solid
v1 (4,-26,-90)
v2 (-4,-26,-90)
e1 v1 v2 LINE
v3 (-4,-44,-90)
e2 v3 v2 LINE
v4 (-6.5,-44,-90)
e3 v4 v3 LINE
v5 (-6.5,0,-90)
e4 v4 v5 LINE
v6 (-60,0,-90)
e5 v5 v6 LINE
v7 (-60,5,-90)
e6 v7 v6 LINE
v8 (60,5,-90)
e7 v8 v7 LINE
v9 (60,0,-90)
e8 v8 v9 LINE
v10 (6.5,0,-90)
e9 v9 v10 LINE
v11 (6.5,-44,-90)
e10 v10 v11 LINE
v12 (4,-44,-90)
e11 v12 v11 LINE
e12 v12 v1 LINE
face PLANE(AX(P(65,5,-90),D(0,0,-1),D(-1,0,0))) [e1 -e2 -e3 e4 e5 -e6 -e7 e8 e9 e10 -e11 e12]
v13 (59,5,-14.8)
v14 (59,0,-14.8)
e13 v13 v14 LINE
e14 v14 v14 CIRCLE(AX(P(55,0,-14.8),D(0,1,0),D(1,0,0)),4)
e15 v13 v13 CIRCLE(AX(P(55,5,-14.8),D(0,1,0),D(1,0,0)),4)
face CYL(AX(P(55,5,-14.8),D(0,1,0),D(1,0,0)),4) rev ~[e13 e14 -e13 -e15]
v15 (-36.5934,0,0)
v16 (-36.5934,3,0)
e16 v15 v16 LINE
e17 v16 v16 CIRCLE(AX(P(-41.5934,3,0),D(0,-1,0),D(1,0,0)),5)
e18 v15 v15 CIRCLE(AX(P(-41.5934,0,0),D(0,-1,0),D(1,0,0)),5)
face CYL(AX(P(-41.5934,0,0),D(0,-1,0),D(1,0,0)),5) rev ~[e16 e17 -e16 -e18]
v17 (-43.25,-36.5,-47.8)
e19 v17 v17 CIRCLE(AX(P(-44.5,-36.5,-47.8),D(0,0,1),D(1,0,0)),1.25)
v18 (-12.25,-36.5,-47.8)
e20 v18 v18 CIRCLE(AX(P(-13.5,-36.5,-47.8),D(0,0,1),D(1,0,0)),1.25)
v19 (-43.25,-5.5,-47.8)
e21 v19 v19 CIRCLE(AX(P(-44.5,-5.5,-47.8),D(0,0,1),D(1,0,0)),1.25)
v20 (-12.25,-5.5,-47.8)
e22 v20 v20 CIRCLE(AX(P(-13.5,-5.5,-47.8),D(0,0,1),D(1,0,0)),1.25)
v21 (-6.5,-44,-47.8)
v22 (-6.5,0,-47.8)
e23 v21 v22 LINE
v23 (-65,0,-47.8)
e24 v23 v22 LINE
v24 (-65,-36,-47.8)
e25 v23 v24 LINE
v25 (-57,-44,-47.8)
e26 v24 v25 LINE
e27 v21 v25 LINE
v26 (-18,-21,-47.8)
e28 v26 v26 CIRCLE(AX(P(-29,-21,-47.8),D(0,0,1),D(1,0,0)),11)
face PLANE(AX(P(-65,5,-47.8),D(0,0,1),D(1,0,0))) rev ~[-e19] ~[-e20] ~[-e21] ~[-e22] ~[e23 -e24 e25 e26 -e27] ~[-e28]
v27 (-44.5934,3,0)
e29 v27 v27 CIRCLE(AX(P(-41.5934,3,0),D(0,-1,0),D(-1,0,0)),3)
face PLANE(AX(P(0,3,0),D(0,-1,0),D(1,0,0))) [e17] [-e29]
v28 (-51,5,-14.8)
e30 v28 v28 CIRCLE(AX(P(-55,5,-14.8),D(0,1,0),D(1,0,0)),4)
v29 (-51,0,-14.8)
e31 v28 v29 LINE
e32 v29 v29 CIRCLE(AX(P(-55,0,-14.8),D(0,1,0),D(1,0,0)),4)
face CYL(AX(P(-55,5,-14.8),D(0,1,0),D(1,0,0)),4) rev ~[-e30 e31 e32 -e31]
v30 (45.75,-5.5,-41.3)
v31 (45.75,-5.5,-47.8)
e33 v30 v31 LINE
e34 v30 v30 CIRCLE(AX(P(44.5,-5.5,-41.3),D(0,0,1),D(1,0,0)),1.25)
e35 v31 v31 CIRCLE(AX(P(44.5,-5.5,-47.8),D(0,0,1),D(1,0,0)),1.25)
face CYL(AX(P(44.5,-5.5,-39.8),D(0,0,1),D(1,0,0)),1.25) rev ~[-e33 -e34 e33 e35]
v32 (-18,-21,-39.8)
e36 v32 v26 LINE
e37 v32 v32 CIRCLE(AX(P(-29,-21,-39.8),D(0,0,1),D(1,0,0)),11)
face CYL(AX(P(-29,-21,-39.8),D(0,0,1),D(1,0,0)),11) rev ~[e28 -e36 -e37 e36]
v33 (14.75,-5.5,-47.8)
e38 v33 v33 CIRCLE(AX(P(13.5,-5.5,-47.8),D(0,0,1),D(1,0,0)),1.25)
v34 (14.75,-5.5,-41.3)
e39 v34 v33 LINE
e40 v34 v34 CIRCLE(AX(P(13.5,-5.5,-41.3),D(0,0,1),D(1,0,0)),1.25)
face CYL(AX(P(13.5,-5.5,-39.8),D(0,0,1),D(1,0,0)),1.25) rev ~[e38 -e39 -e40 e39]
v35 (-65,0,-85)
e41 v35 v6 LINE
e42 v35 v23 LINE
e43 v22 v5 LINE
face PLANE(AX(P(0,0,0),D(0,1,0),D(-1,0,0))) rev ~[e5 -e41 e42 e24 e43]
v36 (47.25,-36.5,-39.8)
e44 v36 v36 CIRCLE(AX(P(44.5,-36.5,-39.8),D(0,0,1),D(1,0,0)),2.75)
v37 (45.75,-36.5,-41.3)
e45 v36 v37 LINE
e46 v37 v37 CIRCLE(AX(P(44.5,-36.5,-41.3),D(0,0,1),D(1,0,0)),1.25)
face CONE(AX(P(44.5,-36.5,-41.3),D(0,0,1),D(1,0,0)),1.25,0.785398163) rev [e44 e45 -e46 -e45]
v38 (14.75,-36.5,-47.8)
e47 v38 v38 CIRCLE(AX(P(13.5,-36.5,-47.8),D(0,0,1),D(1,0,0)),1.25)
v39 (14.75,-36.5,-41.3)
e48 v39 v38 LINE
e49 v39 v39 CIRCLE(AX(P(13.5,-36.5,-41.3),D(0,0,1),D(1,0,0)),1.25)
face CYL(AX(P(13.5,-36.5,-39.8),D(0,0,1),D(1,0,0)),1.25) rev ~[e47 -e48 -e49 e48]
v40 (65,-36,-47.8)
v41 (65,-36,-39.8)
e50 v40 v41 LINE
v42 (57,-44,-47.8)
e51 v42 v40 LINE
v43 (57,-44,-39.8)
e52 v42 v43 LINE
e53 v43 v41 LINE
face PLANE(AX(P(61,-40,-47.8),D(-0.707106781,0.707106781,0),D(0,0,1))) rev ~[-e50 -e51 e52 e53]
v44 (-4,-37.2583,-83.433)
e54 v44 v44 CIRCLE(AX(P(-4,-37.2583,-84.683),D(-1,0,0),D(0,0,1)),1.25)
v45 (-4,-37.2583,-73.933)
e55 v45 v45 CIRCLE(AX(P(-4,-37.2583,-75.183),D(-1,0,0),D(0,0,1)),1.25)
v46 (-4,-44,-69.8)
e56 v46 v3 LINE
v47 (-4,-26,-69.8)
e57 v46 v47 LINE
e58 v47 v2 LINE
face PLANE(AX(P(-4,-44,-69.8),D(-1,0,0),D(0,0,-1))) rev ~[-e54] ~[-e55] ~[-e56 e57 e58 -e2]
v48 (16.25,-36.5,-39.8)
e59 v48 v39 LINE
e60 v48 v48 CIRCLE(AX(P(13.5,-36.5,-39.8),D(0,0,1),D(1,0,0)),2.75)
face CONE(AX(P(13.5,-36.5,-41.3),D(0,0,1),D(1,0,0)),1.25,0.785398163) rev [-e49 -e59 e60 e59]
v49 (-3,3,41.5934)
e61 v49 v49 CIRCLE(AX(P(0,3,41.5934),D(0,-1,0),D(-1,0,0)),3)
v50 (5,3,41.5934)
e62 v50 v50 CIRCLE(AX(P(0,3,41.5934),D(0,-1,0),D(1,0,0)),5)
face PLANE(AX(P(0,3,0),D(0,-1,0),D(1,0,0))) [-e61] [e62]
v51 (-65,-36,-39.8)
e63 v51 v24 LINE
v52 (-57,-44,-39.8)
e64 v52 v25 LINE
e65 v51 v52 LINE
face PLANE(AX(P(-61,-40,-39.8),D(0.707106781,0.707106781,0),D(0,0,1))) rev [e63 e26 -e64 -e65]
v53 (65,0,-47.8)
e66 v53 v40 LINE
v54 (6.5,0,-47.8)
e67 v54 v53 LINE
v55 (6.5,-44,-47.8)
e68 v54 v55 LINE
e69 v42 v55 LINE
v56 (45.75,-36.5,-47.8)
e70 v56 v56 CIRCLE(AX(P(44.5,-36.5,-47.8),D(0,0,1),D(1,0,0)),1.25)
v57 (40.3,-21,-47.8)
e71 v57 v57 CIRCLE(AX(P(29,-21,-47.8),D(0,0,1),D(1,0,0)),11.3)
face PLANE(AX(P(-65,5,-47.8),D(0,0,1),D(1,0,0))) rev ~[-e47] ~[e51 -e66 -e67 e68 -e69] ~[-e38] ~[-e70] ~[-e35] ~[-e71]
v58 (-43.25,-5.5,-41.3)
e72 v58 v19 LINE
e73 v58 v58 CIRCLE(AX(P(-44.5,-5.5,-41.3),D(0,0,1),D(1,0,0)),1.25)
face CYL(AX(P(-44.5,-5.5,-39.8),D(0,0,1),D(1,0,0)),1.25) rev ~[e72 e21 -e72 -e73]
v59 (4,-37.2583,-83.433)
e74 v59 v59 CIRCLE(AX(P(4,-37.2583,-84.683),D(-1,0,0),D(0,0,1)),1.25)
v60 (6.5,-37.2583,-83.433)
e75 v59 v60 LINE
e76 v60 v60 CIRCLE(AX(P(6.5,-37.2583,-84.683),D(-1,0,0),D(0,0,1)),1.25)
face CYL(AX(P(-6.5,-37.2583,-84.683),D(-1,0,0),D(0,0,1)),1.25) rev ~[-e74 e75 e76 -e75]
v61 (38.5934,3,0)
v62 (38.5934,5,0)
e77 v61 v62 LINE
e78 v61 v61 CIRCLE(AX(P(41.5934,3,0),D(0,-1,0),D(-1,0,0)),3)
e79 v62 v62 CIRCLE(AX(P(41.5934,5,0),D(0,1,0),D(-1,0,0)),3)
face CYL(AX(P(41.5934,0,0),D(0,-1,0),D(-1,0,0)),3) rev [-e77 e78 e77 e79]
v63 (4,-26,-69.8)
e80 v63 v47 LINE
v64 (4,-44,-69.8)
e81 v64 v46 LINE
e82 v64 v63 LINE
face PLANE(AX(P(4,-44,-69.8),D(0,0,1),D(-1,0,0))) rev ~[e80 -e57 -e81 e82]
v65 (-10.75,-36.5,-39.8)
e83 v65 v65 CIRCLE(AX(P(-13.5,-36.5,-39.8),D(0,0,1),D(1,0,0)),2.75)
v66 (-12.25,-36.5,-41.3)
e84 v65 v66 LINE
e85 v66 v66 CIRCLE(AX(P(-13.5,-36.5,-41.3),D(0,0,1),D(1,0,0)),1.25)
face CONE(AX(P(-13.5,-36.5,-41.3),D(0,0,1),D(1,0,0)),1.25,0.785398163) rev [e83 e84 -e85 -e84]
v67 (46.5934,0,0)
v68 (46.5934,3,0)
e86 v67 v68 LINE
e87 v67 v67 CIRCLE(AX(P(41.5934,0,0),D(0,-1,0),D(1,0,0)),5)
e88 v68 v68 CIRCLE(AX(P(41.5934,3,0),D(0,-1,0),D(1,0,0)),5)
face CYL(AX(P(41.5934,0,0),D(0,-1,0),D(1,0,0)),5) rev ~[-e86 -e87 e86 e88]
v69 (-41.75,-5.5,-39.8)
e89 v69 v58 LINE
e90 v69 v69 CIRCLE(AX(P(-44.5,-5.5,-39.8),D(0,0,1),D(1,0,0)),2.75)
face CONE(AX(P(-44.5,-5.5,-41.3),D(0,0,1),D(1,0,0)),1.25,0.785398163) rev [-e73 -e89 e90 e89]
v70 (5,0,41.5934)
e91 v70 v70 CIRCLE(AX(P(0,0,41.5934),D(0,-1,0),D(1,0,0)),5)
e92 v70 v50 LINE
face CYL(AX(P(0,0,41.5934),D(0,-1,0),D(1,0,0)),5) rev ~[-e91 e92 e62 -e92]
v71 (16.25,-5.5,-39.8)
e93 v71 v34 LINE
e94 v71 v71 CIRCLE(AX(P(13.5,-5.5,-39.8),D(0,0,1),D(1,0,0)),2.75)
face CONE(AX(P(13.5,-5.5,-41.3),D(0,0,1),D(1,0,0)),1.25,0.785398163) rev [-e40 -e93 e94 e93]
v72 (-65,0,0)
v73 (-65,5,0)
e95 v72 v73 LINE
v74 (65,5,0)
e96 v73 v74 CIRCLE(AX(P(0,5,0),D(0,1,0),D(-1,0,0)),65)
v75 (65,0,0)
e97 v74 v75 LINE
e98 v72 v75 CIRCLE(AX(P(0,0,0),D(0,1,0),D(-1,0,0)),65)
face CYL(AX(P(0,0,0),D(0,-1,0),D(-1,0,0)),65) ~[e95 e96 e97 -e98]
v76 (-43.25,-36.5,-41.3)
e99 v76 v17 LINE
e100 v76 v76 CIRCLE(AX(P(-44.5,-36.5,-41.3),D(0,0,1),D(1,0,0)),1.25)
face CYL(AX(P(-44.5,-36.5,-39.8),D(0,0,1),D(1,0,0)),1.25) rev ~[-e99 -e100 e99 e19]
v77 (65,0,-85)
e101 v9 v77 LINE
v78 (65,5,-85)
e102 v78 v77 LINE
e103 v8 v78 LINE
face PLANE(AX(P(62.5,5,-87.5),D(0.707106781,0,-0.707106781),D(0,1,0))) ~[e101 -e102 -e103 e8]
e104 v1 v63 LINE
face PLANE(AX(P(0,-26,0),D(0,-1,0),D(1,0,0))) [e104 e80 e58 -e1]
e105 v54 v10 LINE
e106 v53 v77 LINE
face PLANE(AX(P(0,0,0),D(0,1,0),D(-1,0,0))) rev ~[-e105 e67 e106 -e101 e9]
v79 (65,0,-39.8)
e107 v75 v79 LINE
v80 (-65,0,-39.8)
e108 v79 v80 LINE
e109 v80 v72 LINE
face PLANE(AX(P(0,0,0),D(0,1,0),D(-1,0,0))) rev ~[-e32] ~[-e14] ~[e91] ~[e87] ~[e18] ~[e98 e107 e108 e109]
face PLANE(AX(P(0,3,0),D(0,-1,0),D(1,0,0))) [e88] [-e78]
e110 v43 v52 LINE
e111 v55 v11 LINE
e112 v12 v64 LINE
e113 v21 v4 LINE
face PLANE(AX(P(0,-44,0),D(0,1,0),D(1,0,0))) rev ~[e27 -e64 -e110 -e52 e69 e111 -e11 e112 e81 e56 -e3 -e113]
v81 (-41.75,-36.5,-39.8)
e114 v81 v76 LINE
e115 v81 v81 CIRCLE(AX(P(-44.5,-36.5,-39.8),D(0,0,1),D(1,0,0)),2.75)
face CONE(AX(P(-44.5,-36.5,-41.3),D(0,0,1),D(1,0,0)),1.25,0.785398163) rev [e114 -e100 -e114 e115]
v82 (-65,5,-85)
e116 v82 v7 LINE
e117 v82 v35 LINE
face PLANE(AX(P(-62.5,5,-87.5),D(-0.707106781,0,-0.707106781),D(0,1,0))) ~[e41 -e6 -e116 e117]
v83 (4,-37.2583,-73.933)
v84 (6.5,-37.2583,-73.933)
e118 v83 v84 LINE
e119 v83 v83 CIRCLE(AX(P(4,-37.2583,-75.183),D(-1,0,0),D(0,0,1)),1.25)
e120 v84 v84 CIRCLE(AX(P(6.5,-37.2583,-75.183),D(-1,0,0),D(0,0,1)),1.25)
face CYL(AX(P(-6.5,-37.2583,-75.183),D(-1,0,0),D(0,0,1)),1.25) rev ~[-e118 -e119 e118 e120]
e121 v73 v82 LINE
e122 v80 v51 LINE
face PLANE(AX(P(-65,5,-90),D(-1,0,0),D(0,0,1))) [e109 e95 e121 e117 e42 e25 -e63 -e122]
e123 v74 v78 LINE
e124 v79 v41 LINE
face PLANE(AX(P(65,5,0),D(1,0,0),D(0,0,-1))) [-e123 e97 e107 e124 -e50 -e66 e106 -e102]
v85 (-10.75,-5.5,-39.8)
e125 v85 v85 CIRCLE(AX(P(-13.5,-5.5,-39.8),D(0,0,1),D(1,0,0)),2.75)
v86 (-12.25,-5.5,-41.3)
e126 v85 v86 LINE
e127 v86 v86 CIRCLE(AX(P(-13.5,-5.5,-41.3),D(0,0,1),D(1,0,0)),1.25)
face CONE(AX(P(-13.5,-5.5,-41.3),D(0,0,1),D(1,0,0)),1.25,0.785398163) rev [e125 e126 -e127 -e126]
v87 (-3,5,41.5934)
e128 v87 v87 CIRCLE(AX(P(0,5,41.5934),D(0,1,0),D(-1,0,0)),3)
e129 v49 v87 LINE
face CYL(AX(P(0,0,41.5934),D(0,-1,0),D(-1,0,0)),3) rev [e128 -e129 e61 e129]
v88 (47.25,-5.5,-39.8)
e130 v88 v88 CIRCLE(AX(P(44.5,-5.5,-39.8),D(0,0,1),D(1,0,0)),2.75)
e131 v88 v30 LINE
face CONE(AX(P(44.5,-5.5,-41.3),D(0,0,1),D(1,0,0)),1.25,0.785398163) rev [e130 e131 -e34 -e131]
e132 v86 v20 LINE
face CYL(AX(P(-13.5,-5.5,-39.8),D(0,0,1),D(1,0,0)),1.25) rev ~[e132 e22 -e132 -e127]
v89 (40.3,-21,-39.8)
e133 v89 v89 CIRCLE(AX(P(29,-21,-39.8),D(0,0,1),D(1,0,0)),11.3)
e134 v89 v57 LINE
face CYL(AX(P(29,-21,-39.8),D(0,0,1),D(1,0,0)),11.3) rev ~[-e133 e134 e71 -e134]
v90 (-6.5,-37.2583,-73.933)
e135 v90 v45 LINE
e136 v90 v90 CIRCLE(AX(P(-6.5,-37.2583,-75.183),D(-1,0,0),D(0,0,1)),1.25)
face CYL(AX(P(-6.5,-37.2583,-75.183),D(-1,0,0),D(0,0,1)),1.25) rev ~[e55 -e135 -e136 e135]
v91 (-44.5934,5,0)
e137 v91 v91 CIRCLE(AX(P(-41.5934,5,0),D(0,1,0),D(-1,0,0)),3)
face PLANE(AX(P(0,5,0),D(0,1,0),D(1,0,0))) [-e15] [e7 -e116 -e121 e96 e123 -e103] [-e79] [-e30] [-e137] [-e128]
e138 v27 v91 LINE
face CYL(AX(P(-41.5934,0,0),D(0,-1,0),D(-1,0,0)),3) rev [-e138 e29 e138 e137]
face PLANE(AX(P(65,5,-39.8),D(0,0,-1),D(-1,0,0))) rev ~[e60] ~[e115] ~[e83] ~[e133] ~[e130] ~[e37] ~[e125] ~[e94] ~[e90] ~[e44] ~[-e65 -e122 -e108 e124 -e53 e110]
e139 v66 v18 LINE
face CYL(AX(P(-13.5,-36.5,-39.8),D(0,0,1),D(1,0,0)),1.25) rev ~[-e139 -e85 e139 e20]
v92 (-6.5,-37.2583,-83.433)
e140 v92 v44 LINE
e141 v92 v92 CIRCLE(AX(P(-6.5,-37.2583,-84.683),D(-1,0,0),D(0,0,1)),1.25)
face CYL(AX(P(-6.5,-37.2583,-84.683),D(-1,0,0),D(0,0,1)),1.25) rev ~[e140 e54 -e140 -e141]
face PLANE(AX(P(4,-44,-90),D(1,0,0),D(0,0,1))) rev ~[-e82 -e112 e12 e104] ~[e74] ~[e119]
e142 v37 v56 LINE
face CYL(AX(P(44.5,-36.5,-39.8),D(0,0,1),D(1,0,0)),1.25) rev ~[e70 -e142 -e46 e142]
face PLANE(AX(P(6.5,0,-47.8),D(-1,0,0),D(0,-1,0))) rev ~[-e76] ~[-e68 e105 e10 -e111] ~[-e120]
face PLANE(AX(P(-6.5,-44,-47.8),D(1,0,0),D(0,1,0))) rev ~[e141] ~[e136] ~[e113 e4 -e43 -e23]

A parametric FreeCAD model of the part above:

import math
import FreeCAD as App
import Part
import Sketcher
from FreeCAD import Vector


def edges_at(feature, points):
    """Names of the edges that pass closest to the given points."""
    edges = feature.Shape.Edges
    near = lambda p: min(range(len(edges)), key=lambda i: edges[i].distToShape(Part.Vertex(*p))[0])
    return sorted({f"Edge{near(p) + 1}" for p in points})


def add_polygon(sketch, points):
    """Adds a closed chain of lines whose ends are joined by coincident constraints."""
    first, n = sketch.GeometryCount, len(points)
    for a, b in zip(points, points[1:] + points[:1]):
        sketch.addGeometry(Part.LineSegment(App.Vector(*a, 0), App.Vector(*b, 0)), False)
    for i in range(n):
        sketch.addConstraint(Sketcher.Constraint("Coincident", first + i, 2, first + (i + 1) % n, 1))

doc = App.newDocument("Part")
params = doc.addObject("Spreadsheet::Sheet", "Params")
for row, (alias, value) in enumerate([
    ("sketch1_diameter", "130 mm"),
    ("sketch1_diameter2", "6 mm"),
    ("pad1_length", "5 mm"),
    ("sketch2_height", "90 mm"),
    ("sketch2_radius", "3 mm"),
    ("sketch2_width", "130 mm"),
    ("pad2_length", "5 mm"),
    ("chamfer_size", "5 mm"),
    ("sketch3_height", "8 mm"),
    ("sketch3_width", "130 mm"),
    ("pad3_length", "49 mm"),
    ("sketch4_diameter", "22.6 mm"),
    ("sketch4_diameter2", "22 mm"),
    ("pocket1_length", "44 mm"),
    ("sketch5_diameter", "2.5 mm"),
    ("pocket2_length", "44 mm"),
    ("chamfer2_size", "8 mm"),
    ("sketch6_diameter", "10 mm"),
    ("sketch6_diameter2", "6 mm"),
    ("pocket3_length", "3 mm"),
    ("chamfer3_size", "1.5 mm"),
    ("sketch7_diameter", "8 mm"),
    ("sketch8_width", "13 mm"),
    ("sketch8_height", "44 mm"),
    ("pad4_length", "42.2 mm"),
    ("sketch9_width", "8 mm"),
    ("sketch9_height", "20.2 mm"),
    ("pocket5_length", "18 mm"),
    ("sketch10_diameter", "2.5 mm"),
    ("pocket6_length", "18 mm"),
], start=1):
    params.set(f"A{row}", alias)
    params.set(f"B{row}", "=" + value)
    params.setAlias(f"B{row}", alias)

body = doc.addObject("PartDesign::Body", "Body")

# Sketch on XZ plane
sketch1 = body.newObject("Sketcher::SketchObject", "Sketch")
sketch1.AttachmentSupport = (doc.getObject("XZ_Plane"), [""])
sketch1.MapMode = "FlatFace"
sketch1.addGeometry([
    Part.Circle(Vector(0, 0, 0), Vector(0, 0, 1), 65),  # 0
    Part.Circle(Vector(0, -41.6, 0), Vector(0, 0, 1), 3),  # 1
    Part.Circle(Vector(41.6, 0, 0), Vector(0, 0, 1), 3),  # 2
    Part.Circle(Vector(-41.6, 0, 0), Vector(0, 0, 1), 3),  # 3
    Part.Circle(Vector(0, 41.6, 0), Vector(0, 0, 1), 3),  # 4
], False)
sketch1.addConstraint([
    Sketcher.Constraint("Coincident", 0, 3, -1, 1),
    Sketcher.Constraint("Equal", 1, 2),
    Sketcher.Constraint("Equal", 2, 3),
    Sketcher.Constraint("Equal", 3, 4),
    Sketcher.Constraint("Symmetric", 2, 3, 3, 3, -1, 1),
    Sketcher.Constraint("Symmetric", 1, 3, 4, 3, -1, 1),
    Sketcher.Constraint("PointOnObject", 1, 3, -2),
    Sketcher.Constraint("PointOnObject", 2, 3, -1),
    Sketcher.Constraint("Diameter", 0, 130.0),
    Sketcher.Constraint("Diameter", 1, 6.0),
    Sketcher.Constraint("DistanceY", 1, 3, -1, 1, 41.5934),
    Sketcher.Constraint("DistanceX", -1, 1, 2, 3, 41.5934),
])
sketch1.setExpression("Constraints[8]", "Params.sketch1_diameter")
sketch1.setExpression("Constraints[9]", "Params.sketch1_diameter2")
pad1 = body.newObject("PartDesign::Pad", "Pad")
pad1.Profile = sketch1
pad1.setExpression("Length", "Params.pad1_length")
pad1.Reversed = True

# Sketch on XZ plane
sketch2 = body.newObject("Sketcher::SketchObject", "Sketch001")
sketch2.AttachmentSupport = (doc.getObject("XZ_Plane"), [""])
sketch2.MapMode = "FlatFace"
sketch2.AttachmentOffset = App.Placement(Vector(0, 0, -5), App.Rotation())
sketch2.addGeometry([
    Part.LineSegment(Vector(44.6, 0, 0), Vector(65, 0, 0)),  # 0
    Part.LineSegment(Vector(65, 0, 0), Vector(65, -90, 0)),  # 1
    Part.LineSegment(Vector(65, -90, 0), Vector(-65, -90, 0)),  # 2
    Part.LineSegment(Vector(-65, -90, 0), Vector(-65, 0, 0)),  # 3
    Part.LineSegment(Vector(-65, 0, 0), Vector(-44.6, 0, 0)),  # 4
    Part.ArcOfCircle(Part.Circle(Vector(-41.6, 0, 0), Vector(0, 0, 1), 3), math.radians(180), math.radians(360)),  # 5
    Part.LineSegment(Vector(-38.6, 0, 0), Vector(38.6, 0, 0)),  # 6
    Part.ArcOfCircle(Part.Circle(Vector(41.6, 0, 0), Vector(0, 0, 1), 3), math.radians(180), math.radians(360)),  # 7
], False)
sketch2.addConstraint([
    Sketcher.Constraint("Coincident", 0, 2, 1, 1),
    Sketcher.Constraint("Coincident", 1, 2, 2, 1),
    Sketcher.Constraint("Coincident", 2, 2, 3, 1),
    Sketcher.Constraint("Coincident", 3, 2, 4, 1),
    Sketcher.Constraint("Coincident", 4, 2, 5, 1),
    Sketcher.Constraint("Coincident", 5, 2, 6, 1),
    Sketcher.Constraint("Coincident", 6, 2, 7, 1),
    Sketcher.Constraint("Coincident", 7, 2, 0, 1),
    Sketcher.Constraint("Horizontal", 0),
    Sketcher.Constraint("Vertical", 1),
    Sketcher.Constraint("Horizontal", 2),
    Sketcher.Constraint("Vertical", 3),
    Sketcher.Constraint("Horizontal", 4),
    Sketcher.Constraint("Horizontal", 6),
    Sketcher.Constraint("Equal", 5, 7),
    Sketcher.Constraint("Symmetric", 5, 3, 7, 3, -1, 1),
    Sketcher.Constraint("Symmetric", 0, 2, 3, 2, -1, 1),
    Sketcher.Constraint("PointOnObject", 5, 3, -1),
    Sketcher.Constraint("PointOnObject", 0, 2, -1),
    Sketcher.Constraint("PointOnObject", 5, 2, -1),
    Sketcher.Constraint("DistanceY", 1, 2, 1, 1, 90.0),
    Sketcher.Constraint("Radius", 5, 3.0),
    Sketcher.Constraint("DistanceX", 2, 2, 2, 1, 130.0),
    Sketcher.Constraint("DistanceX", 0, 1, 0, 2, 20.4066),
])
sketch2.setExpression("Constraints[20]", "Params.sketch2_height")
sketch2.setExpression("Constraints[21]", "Params.sketch2_radius")
sketch2.setExpression("Constraints[22]", "Params.sketch2_width")
pad2 = body.newObject("PartDesign::Pad", "Pad001")
pad2.Profile = sketch2
pad2.setExpression("Length", "Params.pad2_length")
doc.recompute()

chamfer = body.newObject("PartDesign::Chamfer", "Chamfer")
chamfer.Base = (pad2, edges_at(pad2, [(65, 2.5, -90), (-65, 2.5, -90)]))
chamfer.setExpression("Size", "Params.chamfer_size")

# Sketch on XZ plane
sketch3 = body.newObject("Sketcher::SketchObject", "Sketch002")
sketch3.AttachmentSupport = (doc.getObject("XZ_Plane"), [""])
sketch3.MapMode = "FlatFace"
sketch3.AttachmentOffset = App.Placement(Vector(0, 0, -5), App.Rotation())
add_polygon(sketch3, [(65, -48), (-65, -48), (-65, -40), (65, -40)])  # lines 0-3
sketch3.addConstraint([
    Sketcher.Constraint("Horizontal", 0),
    Sketcher.Constraint("Vertical", 1),
    Sketcher.Constraint("Horizontal", 2),
    Sketcher.Constraint("Vertical", 3),
    Sketcher.Constraint("DistanceY", 1, 1, 1, 2, 8.0),
    Sketcher.Constraint("DistanceX", 0, 2, 0, 1, 130.0),
    Sketcher.Constraint("DistanceX", 0, 2, -1, 1, 65.0),
    Sketcher.Constraint("DistanceY", 0, 2, -1, 1, 47.8),
])
sketch3.setExpression("Constraints[8]", "Params.sketch3_height")
sketch3.setExpression("Constraints[9]", "Params.sketch3_width")
pad3 = body.newObject("PartDesign::Pad", "Pad002")
pad3.Profile = sketch3
pad3.setExpression("Length", "Params.pad3_length")

# Sketch on XY plane
sketch4 = body.newObject("Sketcher::SketchObject", "Sketch003")
sketch4.AttachmentSupport = (doc.getObject("XY_Plane"), [""])
sketch4.MapMode = "FlatFace"
sketch4.AttachmentOffset = App.Placement(Vector(0, 0, -39.8), App.Rotation())
sketch4.addGeometry([
    Part.Circle(Vector(29, -21, 0), Vector(0, 0, 1), 11),
    Part.Circle(Vector(-29, -21, 0), Vector(0, 0, 1), 11),
], False)
sketch4.addConstraint([
    Sketcher.Constraint("Symmetric", 0, 3, 1, 3, -2),
    Sketcher.Constraint("Diameter", 0, 22.6),
    Sketcher.Constraint("Diameter", 1, 22.0),
    Sketcher.Constraint("DistanceX", -1, 1, 0, 3, 29.0),
    Sketcher.Constraint("DistanceY", 0, 3, -1, 1, 21.0),
])
sketch4.setExpression("Constraints[1]", "Params.sketch4_diameter")
sketch4.setExpression("Constraints[2]", "Params.sketch4_diameter2")
pocket1 = body.newObject("PartDesign::Pocket", "Pocket")
pocket1.Profile = sketch4
pocket1.setExpression("Length", "Params.pocket1_length")

# Sketch on XY plane
sketch5 = body.newObject("Sketcher::SketchObject", "Sketch004")
sketch5.AttachmentSupport = (doc.getObject("XY_Plane"), [""])
sketch5.MapMode = "FlatFace"
sketch5.AttachmentOffset = App.Placement(Vector(0, 0, -39.8), App.Rotation())
sketch5.addGeometry([
    Part.Circle(Vector(44.5, -5.5, 0), Vector(0, 0, 1), 1.2),  # 0
    Part.Circle(Vector(13.5, -5.5, 0), Vector(0, 0, 1), 1.2),  # 1
    Part.Circle(Vector(13.5, -36.5, 0), Vector(0, 0, 1), 1.2),  # 2
    Part.Circle(Vector(44.5, -36.5, 0), Vector(0, 0, 1), 1.2),  # 3
    Part.Circle(Vector(-13.5, -5.5, 0), Vector(0, 0, 1), 1.2),  # 4
    Part.Circle(Vector(-44.5, -5.5, 0), Vector(0, 0, 1), 1.2),  # 5
    Part.Circle(Vector(-44.5, -36.5, 0), Vector(0, 0, 1), 1.2),  # 6
    Part.Circle(Vector(-13.5, -36.5, 0), Vector(0, 0, 1), 1.2),  # 7
], False)
sketch5.addConstraint([
    Sketcher.Constraint("Equal", 0, 1),
    Sketcher.Constraint("Equal", 1, 2),
    Sketcher.Constraint("Equal", 2, 3),
    Sketcher.Constraint("Equal", 3, 4),
    Sketcher.Constraint("Equal", 4, 5),
    Sketcher.Constraint("Equal", 5, 6),
    Sketcher.Constraint("Equal", 6, 7),
    Sketcher.Constraint("Symmetric", 1, 3, 4, 3, -2),
    Sketcher.Constraint("Symmetric", 0, 3, 5, 3, -2),
    Sketcher.Constraint("Symmetric", 3, 3, 6, 3, -2),
    Sketcher.Constraint("Symmetric", 2, 3, 7, 3, -2),
    Sketcher.Constraint("Horizontal", 0, 3, 1, 3),
    Sketcher.Constraint("Horizontal", 2, 3, 3, 3),
    Sketcher.Constraint("Vertical", 1, 3, 2, 3),
    Sketcher.Constraint("Vertical", 0, 3, 3, 3),
    Sketcher.Constraint("Diameter", 0, 2.5),
    Sketcher.Constraint("DistanceX", 1, 3, 0, 3, 31.0),
    Sketcher.Constraint("DistanceY", 2, 3, 1, 3, 31.0),
    Sketcher.Constraint("DistanceX", 4, 3, 1, 3, 27.0),
    Sketcher.Constraint("DistanceY", 0, 3, -1, 1, 5.5),
])
sketch5.setExpression("Constraints[15]", "Params.sketch5_diameter")
pocket2 = body.newObject("PartDesign::Pocket", "Pocket001")
pocket2.Profile = sketch5
pocket2.setExpression("Length", "Params.pocket2_length")
doc.recompute()

chamfer2 = body.newObject("PartDesign::Chamfer", "Chamfer001")
chamfer2.Base = (pocket2, edges_at(pocket2, [(65, -44, -43.8), (-65, -44, -43.8)]))
chamfer2.setExpression("Size", "Params.chamfer2_size")

# Sketch on XZ plane
sketch6 = body.newObject("Sketcher::SketchObject", "Sketch005")
sketch6.AttachmentSupport = (doc.getObject("XZ_Plane"), [""])
sketch6.MapMode = "FlatFace"
sketch6.addGeometry([
    Part.Circle(Vector(0, 41.6, 0), Vector(0, 0, 1), 5),  # 0
    Part.Circle(Vector(0, 41.6, 0), Vector(0, 0, 1), 3),  # 1
    Part.Circle(Vector(-41.6, 0, 0), Vector(0, 0, 1), 5),  # 2
    Part.Circle(Vector(41.6, 0, 0), Vector(0, 0, 1), 5),  # 3
    Part.Circle(Vector(41.6, 0, 0), Vector(0, 0, 1), 3),  # 4
], False)
sketch6.addConstraint([
    Sketcher.Constraint("Coincident", 1, 3, 0, 3),
    Sketcher.Constraint("Coincident", 4, 3, 3, 3),
    Sketcher.Constraint("Equal", 0, 2),
    Sketcher.Constraint("Equal", 2, 3),
    Sketcher.Constraint("Equal", 1, 4),
    Sketcher.Constraint("Symmetric", 2, 3, 3, 3, -1, 1),
    Sketcher.Constraint("PointOnObject", 0, 3, -2),
    Sketcher.Constraint("PointOnObject", 2, 3, -1),
    Sketcher.Constraint("Diameter", 0, 10.0),
    Sketcher.Constraint("Diameter", 1, 6.0),
    Sketcher.Constraint("DistanceY", -1, 1, 0, 3, 41.5934),
    Sketcher.Constraint("DistanceX", 2, 3, -1, 1, 41.5934),
])
sketch6.setExpression("Constraints[8]", "Params.sketch6_diameter")
sketch6.setExpression("Constraints[9]", "Params.sketch6_diameter2")
pocket3 = body.newObject("PartDesign::Pocket", "Pocket002")
pocket3.Profile = sketch6
pocket3.setExpression("Length", "Params.pocket3_length")
doc.recompute()

chamfer3 = body.newObject("PartDesign::Chamfer", "Chamfer002")
chamfer3.Base = (pocket3, edges_at(pocket3, [
    (43.25, -36.5, -39.8),
    (12.25, -36.5, -39.8),
    (12.25, -5.5, -39.8),
    (43.25, -5.5, -39.8),
    (-14.75, -36.5, -39.8),
    (-14.75, -5.5, -39.8),
    (-45.75, -5.5, -39.8),
    (-45.75, -36.5, -39.8),
]))
chamfer3.setExpression("Size", "Params.chamfer3_size")

# Sketch on XZ plane
sketch7 = body.newObject("Sketcher::SketchObject", "Sketch006")
sketch7.AttachmentSupport = (doc.getObject("XZ_Plane"), [""])
sketch7.MapMode = "FlatFace"
sketch7.AttachmentOffset = App.Placement(Vector(0, 0, -5), App.Rotation())
sketch7.addGeometry([
    Part.Circle(Vector(-55, -14.8, 0), Vector(0, 0, 1), 4),
    Part.Circle(Vector(55, -14.8, 0), Vector(0, 0, 1), 4),
], False)
sketch7.addConstraint([
    Sketcher.Constraint("Equal", 0, 1),
    Sketcher.Constraint("Symmetric", 0, 3, 1, 3, -2),
    Sketcher.Constraint("Diameter", 0, 8.0),
    Sketcher.Constraint("DistanceX", 0, 3, -1, 1, 55.0),
    Sketcher.Constraint("DistanceY", 0, 3, -1, 1, 14.8),
])
sketch7.setExpression("Constraints[2]", "Params.sketch7_diameter")
pocket4 = body.newObject("PartDesign::Pocket", "Pocket003")
pocket4.Profile = sketch7
pocket4.Type = "ThroughAll"
pocket4.Reversed = True

# Sketch on XY plane
sketch8 = body.newObject("Sketcher::SketchObject", "Sketch007")
sketch8.AttachmentSupport = (doc.getObject("XY_Plane"), [""])
sketch8.MapMode = "FlatFace"
sketch8.AttachmentOffset = App.Placement(Vector(0, 0, -47.8), App.Rotation())
add_polygon(sketch8, [(6, -44), (-6, -44), (-6, 0), (6, 0)])  # lines 0-3
sketch8.addConstraint([
    Sketcher.Constraint("Horizontal", 0),
    Sketcher.Constraint("Vertical", 1),
    Sketcher.Constraint("Horizontal", 2),
    Sketcher.Constraint("Vertical", 3),
    Sketcher.Constraint("Symmetric", 1, 2, 2, 2, -1, 1),
    Sketcher.Constraint("DistanceX", 0, 2, 0, 1, 13.0),
    Sketcher.Constraint("DistanceY", 1, 1, 1, 2, 44.0),
])
sketch8.setExpression("Constraints[9]", "Params.sketch8_width")
sketch8.setExpression("Constraints[10]", "Params.sketch8_height")
pad4 = body.newObject("PartDesign::Pad", "Pad003")
pad4.Profile = sketch8
pad4.setExpression("Length", "Params.pad4_length")
pad4.Reversed = True

# Sketch on XZ plane
sketch9 = body.newObject("Sketcher::SketchObject", "Sketch008")
sketch9.AttachmentSupport = (doc.getObject("XZ_Plane"), [""])
sketch9.MapMode = "FlatFace"
sketch9.AttachmentOffset = App.Placement(Vector(0, 0, 44), App.Rotation())
add_polygon(sketch9, [(-4, -70), (-4, -90), (4, -90), (4, -70)])  # lines 0-3
sketch9.addConstraint([
    Sketcher.Constraint("Vertical", 0),
    Sketcher.Constraint("Horizontal", 1),
    Sketcher.Constraint("Vertical", 2),
    Sketcher.Constraint("Horizontal", 3),
    Sketcher.Constraint("DistanceX", 1, 1, 1, 2, 8.0),
    Sketcher.Constraint("DistanceY", 0, 2, 0, 1, 20.2),
    Sketcher.Constraint("DistanceX", 0, 2, -1, 1, 4.0),
    Sketcher.Constraint("DistanceY", 0, 2, -1, 1, 90.0),
])
sketch9.setExpression("Constraints[8]", "Params.sketch9_width")
sketch9.setExpression("Constraints[9]", "Params.sketch9_height")
pocket5 = body.newObject("PartDesign::Pocket", "Pocket004")
pocket5.Profile = sketch9
pocket5.setExpression("Length", "Params.pocket5_length")

# Sketch on YZ plane
sketch10 = body.newObject("Sketcher::SketchObject", "Sketch009")
sketch10.AttachmentSupport = (doc.getObject("YZ_Plane"), [""])
sketch10.MapMode = "FlatFace"
sketch10.AttachmentOffset = App.Placement(Vector(0, 0, -6.5), App.Rotation())
sketch10.addGeometry([
    Part.Circle(Vector(-37.3, -75.2, 0), Vector(0, 0, 1), 1.2),
    Part.Circle(Vector(-37.3, -84.7, 0), Vector(0, 0, 1), 1.2),
], False)
sketch10.addConstraint([
    Sketcher.Constraint("Equal", 0, 1),
    Sketcher.Constraint("Vertical", 0, 3, 1, 3),
    Sketcher.Constraint("Diameter", 0, 2.5),
    Sketcher.Constraint("DistanceY", 1, 3, 0, 3, 9.5),
    Sketcher.Constraint("DistanceY", 0, 3, -1, 1, 75.183),
    Sketcher.Constraint("DistanceX", 0, 3, -1, 1, 37.2583),
])
sketch10.setExpression("Constraints[2]", "Params.sketch10_diameter")
pocket6 = body.newObject("PartDesign::Pocket", "Pocket005")
pocket6.Profile = sketch10
pocket6.setExpression("Length", "Params.pocket6_length")
pocket6.Reversed = True

doc.recompute()
